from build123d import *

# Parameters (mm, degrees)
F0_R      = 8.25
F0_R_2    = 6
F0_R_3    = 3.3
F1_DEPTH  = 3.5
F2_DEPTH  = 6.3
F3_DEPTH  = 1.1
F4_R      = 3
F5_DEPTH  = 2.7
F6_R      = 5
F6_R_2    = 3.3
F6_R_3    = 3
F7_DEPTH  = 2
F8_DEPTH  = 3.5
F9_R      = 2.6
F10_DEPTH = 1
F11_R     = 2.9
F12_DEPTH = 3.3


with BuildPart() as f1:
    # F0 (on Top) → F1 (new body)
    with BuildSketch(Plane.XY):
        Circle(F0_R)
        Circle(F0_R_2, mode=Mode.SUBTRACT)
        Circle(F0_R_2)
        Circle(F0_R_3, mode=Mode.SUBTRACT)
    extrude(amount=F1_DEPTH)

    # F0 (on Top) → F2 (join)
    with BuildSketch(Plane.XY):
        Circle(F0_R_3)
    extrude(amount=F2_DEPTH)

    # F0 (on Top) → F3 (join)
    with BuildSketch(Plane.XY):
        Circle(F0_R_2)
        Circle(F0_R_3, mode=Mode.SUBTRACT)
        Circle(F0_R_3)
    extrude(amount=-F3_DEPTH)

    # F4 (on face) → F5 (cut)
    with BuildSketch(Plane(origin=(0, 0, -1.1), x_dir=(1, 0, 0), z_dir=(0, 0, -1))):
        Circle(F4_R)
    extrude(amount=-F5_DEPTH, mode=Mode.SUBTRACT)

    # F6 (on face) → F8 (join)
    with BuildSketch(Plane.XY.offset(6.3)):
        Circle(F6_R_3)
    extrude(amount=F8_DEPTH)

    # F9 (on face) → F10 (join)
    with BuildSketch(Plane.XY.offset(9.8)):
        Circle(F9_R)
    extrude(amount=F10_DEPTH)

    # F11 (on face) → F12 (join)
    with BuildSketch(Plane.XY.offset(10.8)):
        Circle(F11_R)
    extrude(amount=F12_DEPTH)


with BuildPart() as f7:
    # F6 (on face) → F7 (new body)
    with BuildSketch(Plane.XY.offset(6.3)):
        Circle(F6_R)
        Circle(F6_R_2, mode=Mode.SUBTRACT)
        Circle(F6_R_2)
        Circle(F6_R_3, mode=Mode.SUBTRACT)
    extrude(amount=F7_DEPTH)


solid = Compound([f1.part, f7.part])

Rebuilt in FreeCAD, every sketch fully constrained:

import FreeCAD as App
import Part
import Sketcher
from FreeCAD import Vector
Q = App.Units.Quantity

doc = App.newDocument("Part")
body = doc.addObject("PartDesign::Body", "Body")

# Sketch on XY plane
sketch1 = body.newObject("Sketcher::SketchObject", "Sketch")
sketch1.AttachmentSupport = (doc.getObject("XY_Plane"), [""])
sketch1.MapMode = "FlatFace"
sketch1.addGeometry(Part.Circle(Vector(0, 0, 0), Vector(0, 0, 1), 8.2), False)
sketch1.addGeometry(Part.Circle(Vector(0, 0, 0), Vector(0, 0, 1), 3.3), False)
sketch1.addConstraint(Sketcher.Constraint("Coincident", 0, 3, -1, 1))
sketch1.addConstraint(Sketcher.Constraint("Coincident", 1, 3, -1, 1))
sketch1.addConstraint(Sketcher.Constraint("Diameter", 0, Q("16.5 mm")))
sketch1.addConstraint(Sketcher.Constraint("Diameter", 1, Q("6.6 mm")))
pad1 = body.newObject("PartDesign::Pad", "Pad")
pad1.Profile = sketch1
pad1.Length = 3.5

# Sketch on XY plane
sketch2 = body.newObject("Sketcher::SketchObject", "Sketch001")
sketch2.AttachmentSupport = (doc.getObject("XY_Plane"), [""])
sketch2.MapMode = "FlatFace"
sketch2.addGeometry(Part.Circle(Vector(0, 0, 0), Vector(0, 0, 1), 3.3), False)
sketch2.addConstraint(Sketcher.Constraint("Coincident", 0, 3, -1, 1))
sketch2.addConstraint(Sketcher.Constraint("Diameter", 0, Q("6.6 mm")))
pad2 = body.newObject("PartDesign::Pad", "Pad001")
pad2.Profile = sketch2
pad2.Length = 6.3

# Sketch on XY plane
sketch3 = body.newObject("Sketcher::SketchObject", "Sketch002")
sketch3.AttachmentSupport = (doc.getObject("XY_Plane"), [""])
sketch3.MapMode = "FlatFace"
sketch3.addGeometry(Part.Circle(Vector(0, 0, 0), Vector(0, 0, 1), 6), False)
sketch3.addConstraint(Sketcher.Constraint("Coincident", 0, 3, -1, 1))
sketch3.addConstraint(Sketcher.Constraint("Diameter", 0, Q("12 mm")))
pad3 = body.newObject("PartDesign::Pad", "Pad002")
pad3.Profile = sketch3
pad3.Length = 1.1
pad3.Reversed = True

# Sketch on XY plane
sketch4 = body.newObject("Sketcher::SketchObject", "Sketch003")
sketch4.AttachmentSupport = (doc.getObject("XY_Plane"), [""])
sketch4.MapMode = "FlatFace"
sketch4.AttachmentOffset = App.Placement(Vector(0, 0, -1.1), App.Rotation())
sketch4.addGeometry(Part.Circle(Vector(0, 0, 0), Vector(0, 0, 1), 3), False)
sketch4.addConstraint(Sketcher.Constraint("Coincident", 0, 3, -1, 1))
sketch4.addConstraint(Sketcher.Constraint("Diameter", 0, Q("6 mm")))
pocket1 = body.newObject("PartDesign::Pocket", "Pocket")
pocket1.Profile = sketch4
pocket1.Length = 2.7
pocket1.Reversed = True

# Sketch on XY plane
sketch5 = body.newObject("Sketcher::SketchObject", "Sketch004")
sketch5.AttachmentSupport = (doc.getObject("XY_Plane"), [""])
sketch5.MapMode = "FlatFace"
sketch5.AttachmentOffset = App.Placement(Vector(0, 0, 6.3), App.Rotation())
sketch5.addGeometry(Part.Circle(Vector(0, 0, 0), Vector(0, 0, 1), 3), False)
sketch5.addConstraint(Sketcher.Constraint("Coincident", 0, 3, -1, 1))
sketch5.addConstraint(Sketcher.Constraint("Diameter", 0, Q("6 mm")))
pad4 = body.newObject("PartDesign::Pad", "Pad003")
pad4.Profile = sketch5
pad4.Length = 3.5

# Sketch on XY plane
sketch6 = body.newObject("Sketcher::SketchObject", "Sketch005")
sketch6.AttachmentSupport = (doc.getObject("XY_Plane"), [""])
sketch6.MapMode = "FlatFace"
sketch6.AttachmentOffset = App.Placement(Vector(0, 0, 9.8), App.Rotation())
sketch6.addGeometry(Part.Circle(Vector(0, 0, 0), Vector(0, 0, 1), 2.6), False)
sketch6.addConstraint(Sketcher.Constraint("Coincident", 0, 3, -1, 1))
sketch6.addConstraint(Sketcher.Constraint("Diameter", 0, Q("5.2 mm")))
pad5 = body.newObject("PartDesign::Pad", "Pad004")
pad5.Profile = sketch6
pad5.Length = 1

# Sketch on XY plane
sketch7 = body.newObject("Sketcher::SketchObject", "Sketch006")
sketch7.AttachmentSupport = (doc.getObject("XY_Plane"), [""])
sketch7.MapMode = "FlatFace"
sketch7.AttachmentOffset = App.Placement(Vector(0, 0, 10.8), App.Rotation())
sketch7.addGeometry(Part.Circle(Vector(0, 0, 0), Vector(0, 0, 1), 2.9), False)
sketch7.addConstraint(Sketcher.Constraint("Coincident", 0, 3, -1, 1))
sketch7.addConstraint(Sketcher.Constraint("Diameter", 0, Q("5.8 mm")))
pad6 = body.newObject("PartDesign::Pad", "Pad005")
pad6.Profile = sketch7
pad6.Length = 3.3
body2 = doc.addObject("PartDesign::Body", "Body001")

# Sketch on XY plane
sketch8 = body2.newObject("Sketcher::SketchObject", "Sketch007")
sketch8.AttachmentSupport = (doc.getObject("XY_Plane001"), [""])
sketch8.MapMode = "FlatFace"
sketch8.AttachmentOffset = App.Placement(Vector(0, 0, 6.3), App.Rotation())
sketch8.addGeometry(Part.Circle(Vector(0, 0, 0), Vector(0, 0, 1), 5), False)
sketch8.addGeometry(Part.Circle(Vector(0, 0, 0), Vector(0, 0, 1), 3), False)
sketch8.addConstraint(Sketcher.Constraint("Coincident", 0, 3, -1, 1))
sketch8.addConstraint(Sketcher.Constraint("Coincident", 1, 3, -1, 1))
sketch8.addConstraint(Sketcher.Constraint("Diameter", 0, Q("10 mm")))
sketch8.addConstraint(Sketcher.Constraint("Diameter", 1, Q("6 mm")))
pad7 = body2.newObject("PartDesign::Pad", "Pad006")
pad7.Profile = sketch8
pad7.Length = 2

doc.recompute()
